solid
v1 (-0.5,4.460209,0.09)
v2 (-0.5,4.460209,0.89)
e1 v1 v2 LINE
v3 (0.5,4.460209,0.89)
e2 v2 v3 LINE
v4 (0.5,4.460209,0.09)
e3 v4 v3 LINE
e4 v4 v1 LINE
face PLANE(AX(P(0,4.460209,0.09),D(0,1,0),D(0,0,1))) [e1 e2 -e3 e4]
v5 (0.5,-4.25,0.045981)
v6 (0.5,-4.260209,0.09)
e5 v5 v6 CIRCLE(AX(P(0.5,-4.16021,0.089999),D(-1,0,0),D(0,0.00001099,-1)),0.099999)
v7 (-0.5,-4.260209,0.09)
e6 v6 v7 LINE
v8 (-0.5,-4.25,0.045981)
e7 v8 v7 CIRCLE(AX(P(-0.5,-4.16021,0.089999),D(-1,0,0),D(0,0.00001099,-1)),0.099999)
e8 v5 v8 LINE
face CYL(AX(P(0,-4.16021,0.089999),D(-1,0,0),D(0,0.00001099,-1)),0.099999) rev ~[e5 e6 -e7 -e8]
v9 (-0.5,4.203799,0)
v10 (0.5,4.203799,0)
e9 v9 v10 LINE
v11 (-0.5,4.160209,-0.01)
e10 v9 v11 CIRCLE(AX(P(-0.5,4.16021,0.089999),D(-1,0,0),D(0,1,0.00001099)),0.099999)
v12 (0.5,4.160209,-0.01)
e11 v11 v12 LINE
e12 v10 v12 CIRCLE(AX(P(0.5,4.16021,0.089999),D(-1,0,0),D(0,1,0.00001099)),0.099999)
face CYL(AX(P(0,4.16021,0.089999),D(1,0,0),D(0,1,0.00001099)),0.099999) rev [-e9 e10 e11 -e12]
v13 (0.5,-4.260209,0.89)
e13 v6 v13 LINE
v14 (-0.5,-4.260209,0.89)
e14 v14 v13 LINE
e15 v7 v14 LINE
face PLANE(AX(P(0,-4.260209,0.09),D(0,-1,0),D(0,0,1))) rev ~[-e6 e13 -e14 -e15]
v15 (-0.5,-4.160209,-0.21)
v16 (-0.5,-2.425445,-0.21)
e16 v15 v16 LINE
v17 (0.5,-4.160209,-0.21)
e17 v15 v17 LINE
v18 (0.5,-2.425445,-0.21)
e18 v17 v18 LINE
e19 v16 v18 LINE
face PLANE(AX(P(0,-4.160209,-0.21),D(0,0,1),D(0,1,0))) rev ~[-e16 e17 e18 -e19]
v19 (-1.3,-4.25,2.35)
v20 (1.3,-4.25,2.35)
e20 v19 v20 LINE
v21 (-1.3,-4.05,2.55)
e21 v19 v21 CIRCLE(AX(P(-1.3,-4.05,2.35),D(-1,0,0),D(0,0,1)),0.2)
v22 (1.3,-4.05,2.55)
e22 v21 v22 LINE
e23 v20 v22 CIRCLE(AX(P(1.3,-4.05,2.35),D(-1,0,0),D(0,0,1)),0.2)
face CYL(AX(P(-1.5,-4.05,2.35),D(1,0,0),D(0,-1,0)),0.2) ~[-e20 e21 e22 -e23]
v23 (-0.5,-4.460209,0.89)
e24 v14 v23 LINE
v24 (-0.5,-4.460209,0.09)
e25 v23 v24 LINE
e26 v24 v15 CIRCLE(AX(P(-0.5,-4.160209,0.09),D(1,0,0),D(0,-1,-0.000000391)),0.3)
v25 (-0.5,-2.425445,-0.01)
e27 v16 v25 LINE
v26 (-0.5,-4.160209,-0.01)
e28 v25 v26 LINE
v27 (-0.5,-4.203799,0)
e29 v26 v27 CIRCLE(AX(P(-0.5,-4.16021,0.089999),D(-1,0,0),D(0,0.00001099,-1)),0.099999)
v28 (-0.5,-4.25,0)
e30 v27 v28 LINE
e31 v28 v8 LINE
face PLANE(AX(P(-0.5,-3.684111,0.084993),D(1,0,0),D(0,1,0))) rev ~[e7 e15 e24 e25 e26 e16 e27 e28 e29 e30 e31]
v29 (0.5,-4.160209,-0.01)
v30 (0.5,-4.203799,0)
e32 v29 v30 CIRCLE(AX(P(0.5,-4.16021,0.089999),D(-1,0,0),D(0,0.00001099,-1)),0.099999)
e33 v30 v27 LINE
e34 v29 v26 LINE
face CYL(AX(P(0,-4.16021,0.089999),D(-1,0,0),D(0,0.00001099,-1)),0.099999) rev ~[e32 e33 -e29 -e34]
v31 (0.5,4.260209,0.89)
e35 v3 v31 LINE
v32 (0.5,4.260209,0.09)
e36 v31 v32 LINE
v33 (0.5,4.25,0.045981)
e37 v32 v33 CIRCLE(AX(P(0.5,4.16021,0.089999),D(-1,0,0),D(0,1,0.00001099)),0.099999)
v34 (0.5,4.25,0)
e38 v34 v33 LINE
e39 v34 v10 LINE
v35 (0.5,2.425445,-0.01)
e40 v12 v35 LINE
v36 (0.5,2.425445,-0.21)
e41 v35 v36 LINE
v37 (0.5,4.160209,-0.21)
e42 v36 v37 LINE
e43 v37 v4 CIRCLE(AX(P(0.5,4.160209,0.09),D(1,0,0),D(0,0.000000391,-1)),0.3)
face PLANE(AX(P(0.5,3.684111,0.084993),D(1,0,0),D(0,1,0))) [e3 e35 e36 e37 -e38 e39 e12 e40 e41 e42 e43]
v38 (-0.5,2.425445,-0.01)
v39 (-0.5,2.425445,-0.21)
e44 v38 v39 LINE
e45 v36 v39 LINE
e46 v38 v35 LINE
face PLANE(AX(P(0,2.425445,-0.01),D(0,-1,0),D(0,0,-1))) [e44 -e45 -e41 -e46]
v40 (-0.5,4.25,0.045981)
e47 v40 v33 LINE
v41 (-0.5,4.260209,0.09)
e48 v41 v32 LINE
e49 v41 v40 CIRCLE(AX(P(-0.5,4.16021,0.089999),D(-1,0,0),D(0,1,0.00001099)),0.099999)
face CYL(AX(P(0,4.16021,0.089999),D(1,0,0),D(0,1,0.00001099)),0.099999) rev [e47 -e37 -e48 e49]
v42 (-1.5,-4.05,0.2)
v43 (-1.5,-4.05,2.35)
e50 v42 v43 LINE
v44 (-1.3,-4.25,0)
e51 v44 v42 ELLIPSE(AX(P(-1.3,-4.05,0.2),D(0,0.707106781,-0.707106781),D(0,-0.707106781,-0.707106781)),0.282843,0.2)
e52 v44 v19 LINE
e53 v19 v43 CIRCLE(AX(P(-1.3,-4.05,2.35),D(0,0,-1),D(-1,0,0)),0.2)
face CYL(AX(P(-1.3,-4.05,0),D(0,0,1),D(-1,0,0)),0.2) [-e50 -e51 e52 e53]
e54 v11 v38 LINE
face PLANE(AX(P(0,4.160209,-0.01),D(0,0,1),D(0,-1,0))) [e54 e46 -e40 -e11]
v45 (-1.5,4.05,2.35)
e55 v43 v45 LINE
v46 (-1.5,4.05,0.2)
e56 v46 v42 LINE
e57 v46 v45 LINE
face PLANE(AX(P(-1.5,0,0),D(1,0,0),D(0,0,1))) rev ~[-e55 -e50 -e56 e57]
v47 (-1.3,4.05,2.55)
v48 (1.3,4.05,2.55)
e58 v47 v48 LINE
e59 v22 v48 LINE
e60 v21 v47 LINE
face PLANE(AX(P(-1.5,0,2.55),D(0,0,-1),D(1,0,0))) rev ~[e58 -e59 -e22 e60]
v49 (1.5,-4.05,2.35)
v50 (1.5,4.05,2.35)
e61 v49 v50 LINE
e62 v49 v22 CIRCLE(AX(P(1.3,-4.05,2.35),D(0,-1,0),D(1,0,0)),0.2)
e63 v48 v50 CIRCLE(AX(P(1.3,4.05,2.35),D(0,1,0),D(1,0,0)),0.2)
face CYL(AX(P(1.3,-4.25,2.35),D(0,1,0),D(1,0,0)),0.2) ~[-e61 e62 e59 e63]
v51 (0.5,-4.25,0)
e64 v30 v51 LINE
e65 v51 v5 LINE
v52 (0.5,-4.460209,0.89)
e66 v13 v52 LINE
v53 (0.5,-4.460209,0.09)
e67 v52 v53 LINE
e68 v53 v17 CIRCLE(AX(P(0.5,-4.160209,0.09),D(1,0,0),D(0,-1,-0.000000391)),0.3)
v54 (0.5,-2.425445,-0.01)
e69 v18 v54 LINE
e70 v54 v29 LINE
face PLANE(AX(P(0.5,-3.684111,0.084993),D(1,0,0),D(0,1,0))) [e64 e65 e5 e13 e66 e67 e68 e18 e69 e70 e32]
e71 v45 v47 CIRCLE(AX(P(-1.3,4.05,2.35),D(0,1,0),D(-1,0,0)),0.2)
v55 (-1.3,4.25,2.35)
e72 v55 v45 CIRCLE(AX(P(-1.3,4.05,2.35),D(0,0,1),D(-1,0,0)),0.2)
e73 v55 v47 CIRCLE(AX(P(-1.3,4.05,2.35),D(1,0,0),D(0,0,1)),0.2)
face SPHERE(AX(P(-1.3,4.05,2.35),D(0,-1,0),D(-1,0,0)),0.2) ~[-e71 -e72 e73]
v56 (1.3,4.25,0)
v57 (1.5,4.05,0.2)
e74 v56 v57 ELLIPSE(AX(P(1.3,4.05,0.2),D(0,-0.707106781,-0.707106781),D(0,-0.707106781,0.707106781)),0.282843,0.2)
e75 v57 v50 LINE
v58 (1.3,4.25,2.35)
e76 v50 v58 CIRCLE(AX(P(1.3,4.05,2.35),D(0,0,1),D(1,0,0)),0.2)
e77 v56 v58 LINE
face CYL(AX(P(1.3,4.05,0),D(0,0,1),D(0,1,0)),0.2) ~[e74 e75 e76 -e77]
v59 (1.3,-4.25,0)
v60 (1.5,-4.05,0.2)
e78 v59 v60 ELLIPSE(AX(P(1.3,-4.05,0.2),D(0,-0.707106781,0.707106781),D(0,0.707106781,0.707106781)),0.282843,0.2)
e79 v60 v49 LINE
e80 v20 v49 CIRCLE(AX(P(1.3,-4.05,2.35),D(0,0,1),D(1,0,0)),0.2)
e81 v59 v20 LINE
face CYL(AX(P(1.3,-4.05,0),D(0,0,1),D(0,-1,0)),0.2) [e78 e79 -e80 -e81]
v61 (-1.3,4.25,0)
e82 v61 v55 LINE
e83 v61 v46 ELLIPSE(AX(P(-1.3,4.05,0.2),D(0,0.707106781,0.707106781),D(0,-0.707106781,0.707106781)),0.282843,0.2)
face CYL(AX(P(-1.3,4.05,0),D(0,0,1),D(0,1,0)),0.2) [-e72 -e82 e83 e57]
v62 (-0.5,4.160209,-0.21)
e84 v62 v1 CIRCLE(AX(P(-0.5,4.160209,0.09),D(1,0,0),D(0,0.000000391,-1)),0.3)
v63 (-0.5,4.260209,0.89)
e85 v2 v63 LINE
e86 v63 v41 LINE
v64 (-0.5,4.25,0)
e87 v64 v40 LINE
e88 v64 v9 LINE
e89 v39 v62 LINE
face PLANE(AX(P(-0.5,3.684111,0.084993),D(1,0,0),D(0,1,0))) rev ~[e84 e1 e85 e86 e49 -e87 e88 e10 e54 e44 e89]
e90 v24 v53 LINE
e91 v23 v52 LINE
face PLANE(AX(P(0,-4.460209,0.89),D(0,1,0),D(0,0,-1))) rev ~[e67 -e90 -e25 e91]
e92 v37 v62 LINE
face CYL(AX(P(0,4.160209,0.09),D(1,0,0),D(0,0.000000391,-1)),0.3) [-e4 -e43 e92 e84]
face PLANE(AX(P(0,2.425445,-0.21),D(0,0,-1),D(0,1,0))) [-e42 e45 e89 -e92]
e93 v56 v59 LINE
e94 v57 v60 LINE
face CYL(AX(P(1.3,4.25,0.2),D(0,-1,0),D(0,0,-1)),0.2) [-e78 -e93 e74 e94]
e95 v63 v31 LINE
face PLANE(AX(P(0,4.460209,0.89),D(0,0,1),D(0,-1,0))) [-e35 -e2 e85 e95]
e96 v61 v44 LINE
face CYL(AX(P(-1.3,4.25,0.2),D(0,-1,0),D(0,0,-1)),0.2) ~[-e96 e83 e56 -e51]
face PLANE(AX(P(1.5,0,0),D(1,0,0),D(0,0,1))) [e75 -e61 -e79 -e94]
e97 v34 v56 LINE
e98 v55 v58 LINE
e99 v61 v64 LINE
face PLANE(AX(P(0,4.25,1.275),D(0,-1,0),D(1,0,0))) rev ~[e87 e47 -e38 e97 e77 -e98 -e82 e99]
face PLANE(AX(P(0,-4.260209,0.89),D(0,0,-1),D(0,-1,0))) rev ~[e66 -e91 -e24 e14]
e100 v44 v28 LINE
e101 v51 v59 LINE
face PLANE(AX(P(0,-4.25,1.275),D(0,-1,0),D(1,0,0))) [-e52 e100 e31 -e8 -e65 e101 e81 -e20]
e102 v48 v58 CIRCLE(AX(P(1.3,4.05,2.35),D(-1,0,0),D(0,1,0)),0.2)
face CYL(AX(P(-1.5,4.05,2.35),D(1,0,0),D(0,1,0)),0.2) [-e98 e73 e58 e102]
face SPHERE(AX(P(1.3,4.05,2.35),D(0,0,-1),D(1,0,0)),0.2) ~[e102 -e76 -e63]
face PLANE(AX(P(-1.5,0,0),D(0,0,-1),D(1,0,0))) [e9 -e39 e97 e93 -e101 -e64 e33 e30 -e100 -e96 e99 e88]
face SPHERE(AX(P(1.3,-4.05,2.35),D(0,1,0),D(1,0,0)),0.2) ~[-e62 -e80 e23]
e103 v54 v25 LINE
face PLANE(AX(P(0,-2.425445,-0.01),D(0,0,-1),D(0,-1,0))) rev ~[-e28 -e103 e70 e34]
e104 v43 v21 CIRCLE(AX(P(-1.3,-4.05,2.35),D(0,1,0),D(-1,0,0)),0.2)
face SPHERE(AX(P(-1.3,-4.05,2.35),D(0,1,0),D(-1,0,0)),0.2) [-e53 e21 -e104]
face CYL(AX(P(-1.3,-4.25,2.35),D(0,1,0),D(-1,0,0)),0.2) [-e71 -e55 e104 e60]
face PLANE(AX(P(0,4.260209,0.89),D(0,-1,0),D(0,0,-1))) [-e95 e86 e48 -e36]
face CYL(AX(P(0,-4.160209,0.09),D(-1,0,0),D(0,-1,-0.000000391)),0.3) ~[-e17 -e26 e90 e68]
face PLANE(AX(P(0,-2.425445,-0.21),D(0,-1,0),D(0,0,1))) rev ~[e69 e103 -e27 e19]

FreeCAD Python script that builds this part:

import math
import FreeCAD as App
import Part
import Sketcher

V = App.Vector


def edges_at(feature, points):
    """Names of the edges that pass closest to the given points."""
    edges = feature.Shape.Edges
    near = lambda p: min(range(len(edges)), key=lambda i: edges[i].distToShape(Part.Vertex(*p))[0])
    return sorted({f"Edge{near(p) + 1}" for p in points})

doc = App.newDocument("Part")
body = doc.addObject("PartDesign::Body", "Body")

sketch1 = body.newObject("Sketcher::SketchObject", "Sketch")
sketch1.AttachmentSupport = (doc.getObject("XZ_Plane"), [""])
sketch1.MapMode = "FlatFace"
sketch1.addGeometry([
    Part.LineSegment(V(-1.5, 2.5, 0), V(-1.5, 0, 0)),
    Part.LineSegment(V(-1.5, 0, 0), V(1.5, 0, 0)),
    Part.LineSegment(V(1.5, 0, 0), V(1.5, 2.5, 0)),
    Part.LineSegment(V(1.5, 2.5, 0), V(-1.5, 2.5, 0)),
], False)
sketch1.addConstraint([
    Sketcher.Constraint("Coincident", 0, 2, 1, 1),
    Sketcher.Constraint("Coincident", 1, 2, 2, 1),
    Sketcher.Constraint("Coincident", 2, 2, 3, 1),
    Sketcher.Constraint("Coincident", 3, 2, 0, 1),
    Sketcher.Constraint("Vertical", 0),
    Sketcher.Constraint("Horizontal", 1),
    Sketcher.Constraint("Vertical", 2),
    Sketcher.Constraint("Horizontal", 3),
    Sketcher.Constraint("Symmetric", 0, 2, 1, 2, -1, 1),
    Sketcher.Constraint("DistanceX", 1, 1, 1, 2, 3.0),
    Sketcher.Constraint("DistanceY", 0, 2, 0, 1, 2.55),
])
pad1 = body.newObject("PartDesign::Pad", "Pad")
pad1.Profile = sketch1
pad1.Length = 8.5
pad1.Midplane = True

sketch2 = body.newObject("Sketcher::SketchObject", "Sketch001")
sketch2.AttachmentSupport = (doc.getObject("YZ_Plane"), [""])
sketch2.MapMode = "FlatFace"
sketch2.addGeometry([
    Part.LineSegment(V(-4.26, 0.09, 0), V(-4.26, 0.89, 0)),
    Part.LineSegment(V(-4.26, 0.89, 0), V(-4.46, 0.89, 0)),
    Part.LineSegment(V(-4.46, 0.89, 0), V(-4.46, 0.09, 0)),
    Part.ArcOfCircle(Part.Circle(V(-4.16, 0.09, 0), V(0, 0, 1), 0.3), math.radians(-180), math.radians(-90)),
    Part.LineSegment(V(-4.16, -0.21, 0), V(-2.43, -0.21, 0)),
    Part.LineSegment(V(-2.43, -0.21, 0), V(-2.43, -0.01, 0)),
    Part.LineSegment(V(-2.43, -0.01, 0), V(-4.16, -0.01, 0)),
    Part.ArcOfCircle(Part.Circle(V(-4.16, 0.09, 0), V(0, 0, 1), 0.1), math.radians(180), math.radians(270)),
    Part.LineSegment(V(4.46, 0.09, 0), V(4.46, 0.89, 0)),
    Part.LineSegment(V(4.46, 0.89, 0), V(4.26, 0.89, 0)),
    Part.LineSegment(V(4.26, 0.89, 0), V(4.26, 0.09, 0)),
    Part.ArcOfCircle(Part.Circle(V(4.16, 0.09, 0), V(0, 0, 1), 0.1), math.radians(-90), math.radians(0)),
    Part.LineSegment(V(4.16, -0.01, 0), V(2.43, -0.01, 0)),
    Part.LineSegment(V(2.43, -0.01, 0), V(2.43, -0.21, 0)),
    Part.LineSegment(V(2.43, -0.21, 0), V(4.16, -0.21, 0)),
    Part.ArcOfCircle(Part.Circle(V(4.16, 0.09, 0), V(0, 0, 1), 0.3), math.radians(-90), math.radians(0)),
], False)
sketch2.addConstraint([
    Sketcher.Constraint("Coincident", 0, 2, 1, 1),
    Sketcher.Constraint("Coincident", 1, 2, 2, 1),
    Sketcher.Constraint("Tangent", 2, 2, 3, 1),
    Sketcher.Constraint("Tangent", 3, 2, 4, 1),
    Sketcher.Constraint("Coincident", 4, 2, 5, 1),
    Sketcher.Constraint("Coincident", 5, 2, 6, 1),
    Sketcher.Constraint("Coincident", 6, 2, 7, 2),
    Sketcher.Constraint("Coincident", 7, 1, 0, 1),
    Sketcher.Constraint("Coincident", 8, 2, 9, 1),
    Sketcher.Constraint("Coincident", 9, 2, 10, 1),
    Sketcher.Constraint("Coincident", 10, 2, 11, 2),
    Sketcher.Constraint("Coincident", 11, 1, 12, 1),
    Sketcher.Constraint("Coincident", 12, 2, 13, 1),
    Sketcher.Constraint("Coincident", 13, 2, 14, 1),
    Sketcher.Constraint("Tangent", 14, 2, 15, 1),
    Sketcher.Constraint("Tangent", 15, 2, 8, 1),
    Sketcher.Constraint("Vertical", 0),
    Sketcher.Constraint("Horizontal", 1),
    Sketcher.Constraint("Vertical", 2),
    Sketcher.Constraint("Horizontal", 4),
    Sketcher.Constraint("Vertical", 5),
    Sketcher.Constraint("Horizontal", 6),
    Sketcher.Constraint("Vertical", 8),
    Sketcher.Constraint("Horizontal", 9),
    Sketcher.Constraint("Vertical", 10),
    Sketcher.Constraint("Horizontal", 12),
    Sketcher.Constraint("Vertical", 13),
    Sketcher.Constraint("Horizontal", 14),
    Sketcher.Constraint("Coincident", 7, 3, 3, 3),
    Sketcher.Constraint("Coincident", 15, 3, 11, 3),
    Sketcher.Constraint("Equal", 7, 11),
    Sketcher.Constraint("Equal", 3, 15),
    Sketcher.Constraint("Symmetric", 3, 3, 11, 3, -2),
    Sketcher.Constraint("Horizontal", 2, 2, 7, 1),
    Sketcher.Constraint("Horizontal", 1, 2, 8, 2),
    Sketcher.Constraint("Horizontal", 7, 1, 10, 2),
    Sketcher.Constraint("Vertical", 3, 2, 6, 2),
    Sketcher.Constraint("Vertical", 15, 3, 11, 1),
    Sketcher.Constraint("Equal", 6, 12),
    Sketcher.Constraint("Radius", 3, 0.3),
    Sketcher.Constraint("Radius", 7, 0.099999),
    Sketcher.Constraint("DistanceY", 0, 1, 0, 2, 0.8),
    Sketcher.Constraint("DistanceY", -1, 1, 3, 3, 0.09),
    Sketcher.Constraint("DistanceX", 4, 1, 4, 2, 1.734764),
    Sketcher.Constraint("DistanceX", 3, 3, -1, 1, 4.160209),
])
pad2 = body.newObject("PartDesign::Pad", "Pad001")
pad2.Profile = sketch2
pad2.Length = 1
pad2.Midplane = True
doc.recompute()

fillet = body.newObject("PartDesign::Fillet", "Fillet")
fillet.Base = (pad2, edges_at(pad2, [
    (1.5, 4.25, 1.275),
    (1.5, 0, 2.55),
    (1.5, -4.25, 1.275),
    (1.5, 0, 0),
    (-1.5, 0, 2.55),
    (-1.5, 4.25, 1.275),
    (-1.5, 0, 0),
    (-1.5, -4.25, 1.275),
    (0, 4.25, 2.55),
    (0, -4.25, 2.55),
]))
fillet.Radius = 0.2

doc.recompute()
